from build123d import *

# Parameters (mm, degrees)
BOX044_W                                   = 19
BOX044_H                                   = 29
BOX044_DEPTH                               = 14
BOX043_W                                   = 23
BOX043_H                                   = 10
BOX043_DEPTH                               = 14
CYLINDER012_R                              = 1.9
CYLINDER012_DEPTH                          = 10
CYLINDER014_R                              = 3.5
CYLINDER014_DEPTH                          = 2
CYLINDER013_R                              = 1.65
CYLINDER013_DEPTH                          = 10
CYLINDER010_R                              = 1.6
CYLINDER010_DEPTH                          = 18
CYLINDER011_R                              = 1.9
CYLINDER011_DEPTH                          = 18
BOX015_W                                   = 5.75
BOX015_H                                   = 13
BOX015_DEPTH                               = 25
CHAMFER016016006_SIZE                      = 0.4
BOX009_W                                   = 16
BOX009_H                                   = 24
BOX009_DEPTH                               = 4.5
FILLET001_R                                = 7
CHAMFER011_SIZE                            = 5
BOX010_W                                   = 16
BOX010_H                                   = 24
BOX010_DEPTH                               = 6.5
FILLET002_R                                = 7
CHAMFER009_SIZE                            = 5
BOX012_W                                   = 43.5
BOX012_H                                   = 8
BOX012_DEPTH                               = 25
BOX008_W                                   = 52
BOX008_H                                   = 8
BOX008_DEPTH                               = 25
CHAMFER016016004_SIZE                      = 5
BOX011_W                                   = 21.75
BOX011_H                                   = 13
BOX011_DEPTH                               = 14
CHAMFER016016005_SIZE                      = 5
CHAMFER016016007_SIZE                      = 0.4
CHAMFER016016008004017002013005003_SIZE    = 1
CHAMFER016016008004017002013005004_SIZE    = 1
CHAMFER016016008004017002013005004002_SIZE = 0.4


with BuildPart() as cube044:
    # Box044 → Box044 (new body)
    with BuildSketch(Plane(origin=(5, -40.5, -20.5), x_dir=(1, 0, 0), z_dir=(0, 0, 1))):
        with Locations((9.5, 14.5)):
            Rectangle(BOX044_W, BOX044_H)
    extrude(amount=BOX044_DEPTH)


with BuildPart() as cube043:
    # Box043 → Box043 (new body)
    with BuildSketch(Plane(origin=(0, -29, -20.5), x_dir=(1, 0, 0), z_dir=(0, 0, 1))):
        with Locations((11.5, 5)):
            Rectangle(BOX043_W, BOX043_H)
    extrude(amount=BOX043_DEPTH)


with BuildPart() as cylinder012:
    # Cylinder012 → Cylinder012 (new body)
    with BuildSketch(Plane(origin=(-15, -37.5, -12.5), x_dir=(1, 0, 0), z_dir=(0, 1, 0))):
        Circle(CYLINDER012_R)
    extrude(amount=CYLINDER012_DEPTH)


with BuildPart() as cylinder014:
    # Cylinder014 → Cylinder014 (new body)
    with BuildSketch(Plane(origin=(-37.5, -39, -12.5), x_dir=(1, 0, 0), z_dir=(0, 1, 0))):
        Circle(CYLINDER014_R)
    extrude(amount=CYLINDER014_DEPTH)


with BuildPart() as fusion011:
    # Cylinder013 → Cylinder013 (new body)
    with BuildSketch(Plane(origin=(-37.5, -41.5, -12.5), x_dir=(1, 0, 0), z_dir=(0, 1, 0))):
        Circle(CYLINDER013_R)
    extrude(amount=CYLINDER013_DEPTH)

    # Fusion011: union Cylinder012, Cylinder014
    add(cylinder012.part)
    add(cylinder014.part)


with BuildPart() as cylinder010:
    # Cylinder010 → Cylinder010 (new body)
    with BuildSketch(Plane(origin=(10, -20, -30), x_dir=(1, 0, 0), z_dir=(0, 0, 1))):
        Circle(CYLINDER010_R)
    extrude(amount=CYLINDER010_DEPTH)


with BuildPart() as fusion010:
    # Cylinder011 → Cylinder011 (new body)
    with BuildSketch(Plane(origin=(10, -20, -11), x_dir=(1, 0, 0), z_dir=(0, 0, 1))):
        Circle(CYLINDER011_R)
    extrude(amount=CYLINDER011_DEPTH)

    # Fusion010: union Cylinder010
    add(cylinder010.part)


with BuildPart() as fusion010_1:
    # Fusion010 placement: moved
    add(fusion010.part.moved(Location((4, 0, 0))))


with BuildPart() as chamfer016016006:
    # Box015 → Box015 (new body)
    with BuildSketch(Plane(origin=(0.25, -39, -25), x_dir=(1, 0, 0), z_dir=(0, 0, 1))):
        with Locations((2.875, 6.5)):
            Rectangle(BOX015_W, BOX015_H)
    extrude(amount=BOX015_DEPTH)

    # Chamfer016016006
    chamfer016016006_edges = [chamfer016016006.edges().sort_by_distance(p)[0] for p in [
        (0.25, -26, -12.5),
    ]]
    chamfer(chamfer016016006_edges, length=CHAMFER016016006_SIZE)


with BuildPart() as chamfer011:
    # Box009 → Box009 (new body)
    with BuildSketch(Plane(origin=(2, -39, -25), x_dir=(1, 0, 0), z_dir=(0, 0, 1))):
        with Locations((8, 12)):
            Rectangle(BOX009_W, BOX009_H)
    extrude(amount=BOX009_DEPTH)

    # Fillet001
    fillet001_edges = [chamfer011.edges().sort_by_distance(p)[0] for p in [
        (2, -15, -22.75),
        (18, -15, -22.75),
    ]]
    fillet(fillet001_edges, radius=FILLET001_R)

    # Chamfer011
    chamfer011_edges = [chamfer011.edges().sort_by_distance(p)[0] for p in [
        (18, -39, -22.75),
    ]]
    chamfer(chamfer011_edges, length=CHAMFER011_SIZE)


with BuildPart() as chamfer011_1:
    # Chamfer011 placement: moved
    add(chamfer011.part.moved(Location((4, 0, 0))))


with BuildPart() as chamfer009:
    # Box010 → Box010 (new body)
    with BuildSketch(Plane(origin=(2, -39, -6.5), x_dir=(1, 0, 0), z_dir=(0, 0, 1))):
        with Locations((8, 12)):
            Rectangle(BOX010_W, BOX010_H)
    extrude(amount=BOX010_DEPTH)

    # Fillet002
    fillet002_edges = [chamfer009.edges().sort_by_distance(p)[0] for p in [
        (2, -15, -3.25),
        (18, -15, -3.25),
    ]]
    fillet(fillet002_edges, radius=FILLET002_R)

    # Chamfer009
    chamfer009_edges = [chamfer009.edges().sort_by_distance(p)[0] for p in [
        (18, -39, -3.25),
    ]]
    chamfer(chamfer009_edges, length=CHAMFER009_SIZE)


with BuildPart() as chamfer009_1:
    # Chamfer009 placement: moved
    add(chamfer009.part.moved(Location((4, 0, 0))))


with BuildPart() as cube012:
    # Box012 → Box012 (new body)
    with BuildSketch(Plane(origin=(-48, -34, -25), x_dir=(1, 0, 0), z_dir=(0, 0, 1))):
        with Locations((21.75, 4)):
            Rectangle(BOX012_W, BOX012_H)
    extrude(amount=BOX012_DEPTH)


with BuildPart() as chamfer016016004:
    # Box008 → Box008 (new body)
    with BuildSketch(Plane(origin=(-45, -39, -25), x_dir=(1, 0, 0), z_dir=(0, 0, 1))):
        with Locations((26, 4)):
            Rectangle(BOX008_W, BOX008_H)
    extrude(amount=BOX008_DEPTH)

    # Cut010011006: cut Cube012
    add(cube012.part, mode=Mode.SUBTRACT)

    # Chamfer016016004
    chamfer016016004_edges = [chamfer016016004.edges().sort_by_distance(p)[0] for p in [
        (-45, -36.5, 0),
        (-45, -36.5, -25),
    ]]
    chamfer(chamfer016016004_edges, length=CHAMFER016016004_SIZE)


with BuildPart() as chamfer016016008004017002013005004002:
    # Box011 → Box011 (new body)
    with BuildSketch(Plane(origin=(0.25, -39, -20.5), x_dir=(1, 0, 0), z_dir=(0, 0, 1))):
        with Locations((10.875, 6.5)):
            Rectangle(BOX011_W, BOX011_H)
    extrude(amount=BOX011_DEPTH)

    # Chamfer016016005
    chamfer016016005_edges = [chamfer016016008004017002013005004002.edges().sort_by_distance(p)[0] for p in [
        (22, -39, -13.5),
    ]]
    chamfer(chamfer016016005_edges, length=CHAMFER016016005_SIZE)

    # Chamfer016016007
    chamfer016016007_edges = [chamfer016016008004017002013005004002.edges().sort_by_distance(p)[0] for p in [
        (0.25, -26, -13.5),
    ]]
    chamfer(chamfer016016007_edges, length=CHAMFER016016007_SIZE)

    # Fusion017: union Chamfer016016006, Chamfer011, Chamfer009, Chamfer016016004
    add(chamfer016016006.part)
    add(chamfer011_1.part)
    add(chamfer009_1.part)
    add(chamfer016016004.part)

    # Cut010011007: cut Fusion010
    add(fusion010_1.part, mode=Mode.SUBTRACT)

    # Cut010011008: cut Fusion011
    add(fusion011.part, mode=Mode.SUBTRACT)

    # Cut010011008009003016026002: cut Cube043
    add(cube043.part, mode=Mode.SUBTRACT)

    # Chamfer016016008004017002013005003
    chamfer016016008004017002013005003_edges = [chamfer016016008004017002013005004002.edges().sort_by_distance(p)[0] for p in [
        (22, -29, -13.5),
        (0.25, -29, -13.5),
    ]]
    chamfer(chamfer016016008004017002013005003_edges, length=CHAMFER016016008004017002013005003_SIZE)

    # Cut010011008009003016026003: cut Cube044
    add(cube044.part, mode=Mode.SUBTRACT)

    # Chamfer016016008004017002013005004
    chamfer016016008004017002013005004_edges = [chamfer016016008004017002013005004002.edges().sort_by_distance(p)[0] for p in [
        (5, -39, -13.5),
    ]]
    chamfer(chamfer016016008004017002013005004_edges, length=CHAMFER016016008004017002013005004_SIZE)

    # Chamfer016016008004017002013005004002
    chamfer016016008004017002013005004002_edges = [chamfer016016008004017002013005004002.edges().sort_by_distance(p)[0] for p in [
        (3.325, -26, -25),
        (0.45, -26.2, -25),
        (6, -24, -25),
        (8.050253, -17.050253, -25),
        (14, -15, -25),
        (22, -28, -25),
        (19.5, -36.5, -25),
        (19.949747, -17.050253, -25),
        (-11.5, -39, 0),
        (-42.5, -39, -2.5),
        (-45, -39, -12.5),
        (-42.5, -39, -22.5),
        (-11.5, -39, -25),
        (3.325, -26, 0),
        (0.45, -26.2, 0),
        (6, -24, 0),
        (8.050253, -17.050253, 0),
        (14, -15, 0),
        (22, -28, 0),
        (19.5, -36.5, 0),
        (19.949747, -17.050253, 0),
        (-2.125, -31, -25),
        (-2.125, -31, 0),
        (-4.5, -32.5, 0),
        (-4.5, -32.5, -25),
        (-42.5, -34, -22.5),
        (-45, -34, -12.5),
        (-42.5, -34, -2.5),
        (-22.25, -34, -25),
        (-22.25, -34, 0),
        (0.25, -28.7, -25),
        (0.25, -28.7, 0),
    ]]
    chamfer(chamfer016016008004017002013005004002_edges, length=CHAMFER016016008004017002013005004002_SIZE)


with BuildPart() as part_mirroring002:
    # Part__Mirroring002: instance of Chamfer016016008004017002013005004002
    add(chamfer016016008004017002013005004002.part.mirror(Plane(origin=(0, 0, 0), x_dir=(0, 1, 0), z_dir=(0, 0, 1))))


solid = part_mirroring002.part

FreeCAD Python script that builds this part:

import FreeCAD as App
import Part
import Sketcher
Q = App.Units.Quantity


def edges_at(feature, points):
    """Names of the edges that pass closest to the given points."""
    edges = feature.Shape.Edges
    near = lambda p: min(range(len(edges)), key=lambda i: edges[i].distToShape(Part.Vertex(*p))[0])
    return sorted({f"Edge{near(p) + 1}" for p in points})

doc = App.newDocument("Part")
body = doc.addObject("PartDesign::Body", "Body")

sketch1 = body.newObject("Sketcher::SketchObject", "Sketch")
sketch1.AttachmentSupport = (doc.getObject("XY_Plane"), [""])
sketch1.MapMode = "FlatFace"
sketch1.AttachmentOffset = App.Placement(App.Vector(0, 0, -20.5), App.Rotation())
sketch1.addGeometry([
    Part.LineSegment(App.Vector(5, -11.5, 0), App.Vector(5, -40.5, 0)),
    Part.LineSegment(App.Vector(5, -40.5, 0), App.Vector(24, -40.5, 0)),
    Part.LineSegment(App.Vector(24, -40.5, 0), App.Vector(24, -11.5, 0)),
    Part.LineSegment(App.Vector(24, -11.5, 0), App.Vector(5, -11.5, 0)),
], False)
sketch1.addConstraint([
    Sketcher.Constraint("Coincident", 0, 2, 1, 1),
    Sketcher.Constraint("Coincident", 1, 2, 2, 1),
    Sketcher.Constraint("Coincident", 2, 2, 3, 1),
    Sketcher.Constraint("Coincident", 3, 2, 0, 1),
    Sketcher.Constraint("Vertical", 0),
    Sketcher.Constraint("Horizontal", 1),
    Sketcher.Constraint("Vertical", 2),
    Sketcher.Constraint("Horizontal", 3),
    Sketcher.Constraint("DistanceX", 1, 1, 1, 2, Q("19 mm")),
    Sketcher.Constraint("DistanceY", 0, 2, 0, 1, Q("29 mm")),
    Sketcher.Constraint("DistanceX", -1, 1, 0, 2, Q("5 mm")),
    Sketcher.Constraint("DistanceY", 0, 2, -1, 1, Q("40.5 mm")),
])
pad1 = body.newObject("PartDesign::Pad", "Pad")
pad1.Profile = sketch1
pad1.Length = 14
body2 = doc.addObject("PartDesign::Body", "Body001")

sketch2 = body2.newObject("Sketcher::SketchObject", "Sketch001")
sketch2.AttachmentSupport = (doc.getObject("XY_Plane001"), [""])
sketch2.MapMode = "FlatFace"
sketch2.AttachmentOffset = App.Placement(App.Vector(0, 0, -20.5), App.Rotation())
sketch2.addGeometry([
    Part.LineSegment(App.Vector(0, -19, 0), App.Vector(0, -29, 0)),
    Part.LineSegment(App.Vector(0, -29, 0), App.Vector(23, -29, 0)),
    Part.LineSegment(App.Vector(23, -29, 0), App.Vector(23, -19, 0)),
    Part.LineSegment(App.Vector(23, -19, 0), App.Vector(0, -19, 0)),
], False)
sketch2.addConstraint([
    Sketcher.Constraint("Coincident", 0, 2, 1, 1),
    Sketcher.Constraint("Coincident", 1, 2, 2, 1),
    Sketcher.Constraint("Coincident", 2, 2, 3, 1),
    Sketcher.Constraint("Coincident", 3, 2, 0, 1),
    Sketcher.Constraint("Vertical", 0),
    Sketcher.Constraint("Horizontal", 1),
    Sketcher.Constraint("Vertical", 2),
    Sketcher.Constraint("Horizontal", 3),
    Sketcher.Constraint("PointOnObject", 0, 2, -2),
    Sketcher.Constraint("DistanceX", 1, 1, 1, 2, Q("23 mm")),
    Sketcher.Constraint("DistanceY", 0, 2, 0, 1, Q("10 mm")),
    Sketcher.Constraint("DistanceY", 0, 2, -1, 1, Q("29 mm")),
])
pad2 = body2.newObject("PartDesign::Pad", "Pad001")
pad2.Profile = sketch2
pad2.Length = 14
body3 = doc.addObject("PartDesign::Body", "Body002")

sketch3 = body3.newObject("Sketcher::SketchObject", "Sketch002")
sketch3.AttachmentSupport = (doc.getObject("XZ_Plane002"), [""])
sketch3.MapMode = "FlatFace"
sketch3.AttachmentOffset = App.Placement(App.Vector(0, 0, 37.5), App.Rotation())
sketch3.addGeometry(Part.Circle(App.Vector(-15, -12.5, 0), App.Vector(0, 0, 1), 1.9), False)
sketch3.addConstraint([
    Sketcher.Constraint("Diameter", 0, Q("3.8 mm")),
    Sketcher.Constraint("DistanceX", 0, 3, -1, 1, Q("15 mm")),
    Sketcher.Constraint("DistanceY", 0, 3, -1, 1, Q("12.5 mm")),
])
pad3 = body3.newObject("PartDesign::Pad", "Pad002")
pad3.Profile = sketch3
pad3.Length = 10
pad3.Reversed = True
body4 = doc.addObject("PartDesign::Body", "Body003")

sketch4 = body4.newObject("Sketcher::SketchObject", "Sketch003")
sketch4.AttachmentSupport = (doc.getObject("XZ_Plane003"), [""])
sketch4.MapMode = "FlatFace"
sketch4.AttachmentOffset = App.Placement(App.Vector(0, 0, 39), App.Rotation())
sketch4.addGeometry(Part.Circle(App.Vector(-37.5, -12.5, 0), App.Vector(0, 0, 1), 3.5), False)
sketch4.addConstraint([
    Sketcher.Constraint("Diameter", 0, Q("7 mm")),
    Sketcher.Constraint("DistanceX", 0, 3, -1, 1, Q("37.5 mm")),
    Sketcher.Constraint("DistanceY", 0, 3, -1, 1, Q("12.5 mm")),
])
pad4 = body4.newObject("PartDesign::Pad", "Pad003")
pad4.Profile = sketch4
pad4.Length = 2
pad4.Reversed = True
body5 = doc.addObject("PartDesign::Body", "Body004")
body5.AllowCompound = True

sketch5 = body5.newObject("Sketcher::SketchObject", "Sketch004")
sketch5.AttachmentSupport = (doc.getObject("XZ_Plane004"), [""])
sketch5.MapMode = "FlatFace"
sketch5.AttachmentOffset = App.Placement(App.Vector(0, 0, 41.5), App.Rotation())
sketch5.addGeometry(Part.Circle(App.Vector(-37.5, -12.5, 0), App.Vector(0, 0, 1), 1.65), False)
sketch5.addConstraint([
    Sketcher.Constraint("Diameter", 0, Q("3.3 mm")),
    Sketcher.Constraint("DistanceX", 0, 3, -1, 1, Q("37.5 mm")),
    Sketcher.Constraint("DistanceY", 0, 3, -1, 1, Q("12.5 mm")),
])
pad5 = body5.newObject("PartDesign::Pad", "Pad004")
pad5.Profile = sketch5
pad5.Length = 10
pad5.Reversed = True
doc.recompute()

boolean = body5.newObject("PartDesign::Boolean", "Boolean")
boolean.Type = "Fuse"
boolean.addObjects([body3])
doc.recompute()

boolean2 = body5.newObject("PartDesign::Boolean", "Boolean001")
boolean2.Type = "Fuse"
boolean2.addObjects([body4])
body6 = doc.addObject("PartDesign::Body", "Body005")

sketch6 = body6.newObject("Sketcher::SketchObject", "Sketch005")
sketch6.AttachmentSupport = (doc.getObject("XY_Plane005"), [""])
sketch6.MapMode = "FlatFace"
sketch6.AttachmentOffset = App.Placement(App.Vector(0, 0, -30), App.Rotation())
sketch6.addGeometry(Part.Circle(App.Vector(10, -20, 0), App.Vector(0, 0, 1), 1.6), False)
sketch6.addConstraint([
    Sketcher.Constraint("Diameter", 0, Q("3.2 mm")),
    Sketcher.Constraint("DistanceX", -1, 1, 0, 3, Q("10 mm")),
    Sketcher.Constraint("DistanceY", 0, 3, -1, 1, Q("20 mm")),
])
pad6 = body6.newObject("PartDesign::Pad", "Pad005")
pad6.Profile = sketch6
pad6.Length = 18
body7 = doc.addObject("PartDesign::Body", "Body006")
body7.AllowCompound = True

sketch7 = body7.newObject("Sketcher::SketchObject", "Sketch006")
sketch7.AttachmentSupport = (doc.getObject("XY_Plane006"), [""])
sketch7.MapMode = "FlatFace"
sketch7.AttachmentOffset = App.Placement(App.Vector(0, 0, -11), App.Rotation())
sketch7.addGeometry(Part.Circle(App.Vector(10, -20, 0), App.Vector(0, 0, 1), 1.9), False)
sketch7.addConstraint([
    Sketcher.Constraint("Diameter", 0, Q("3.8 mm")),
    Sketcher.Constraint("DistanceX", -1, 1, 0, 3, Q("10 mm")),
    Sketcher.Constraint("DistanceY", 0, 3, -1, 1, Q("20 mm")),
])
pad7 = body7.newObject("PartDesign::Pad", "Pad006")
pad7.Profile = sketch7
pad7.Length = 18
doc.recompute()

boolean3 = body7.newObject("PartDesign::Boolean", "Boolean002")
boolean3.Type = "Fuse"
boolean3.addObjects([body6])
body8 = doc.addObject("PartDesign::Body", "Body007")
body8.AllowCompound = True
doc.recompute()

body7.Placement = App.Placement(App.Vector(4, 0, 0), App.Rotation(App.Vector(0, 0, 1), 0))
boolean4 = body8.newObject("PartDesign::Boolean", "Boolean003")
boolean4.Type = "Fuse"
boolean4.addObjects([body7])
body9 = doc.addObject("PartDesign::Body", "Body008")

sketch8 = body9.newObject("Sketcher::SketchObject", "Sketch007")
sketch8.AttachmentSupport = (doc.getObject("XY_Plane008"), [""])
sketch8.MapMode = "FlatFace"
sketch8.AttachmentOffset = App.Placement(App.Vector(0, 0, -25), App.Rotation())
sketch8.addGeometry([
    Part.LineSegment(App.Vector(0.25, -26, 0), App.Vector(0.25, -39, 0)),
    Part.LineSegment(App.Vector(0.25, -39, 0), App.Vector(6, -39, 0)),
    Part.LineSegment(App.Vector(6, -39, 0), App.Vector(6, -26, 0)),
    Part.LineSegment(App.Vector(6, -26, 0), App.Vector(0.25, -26, 0)),
], False)
sketch8.addConstraint([
    Sketcher.Constraint("Coincident", 0, 2, 1, 1),
    Sketcher.Constraint("Coincident", 1, 2, 2, 1),
    Sketcher.Constraint("Coincident", 2, 2, 3, 1),
    Sketcher.Constraint("Coincident", 3, 2, 0, 1),
    Sketcher.Constraint("Vertical", 0),
    Sketcher.Constraint("Horizontal", 1),
    Sketcher.Constraint("Vertical", 2),
    Sketcher.Constraint("Horizontal", 3),
    Sketcher.Constraint("DistanceY", 0, 2, 0, 1, Q("13 mm")),
    Sketcher.Constraint("DistanceY", 0, 2, -1, 1, Q("39 mm")),
    Sketcher.Constraint("DistanceX", -1, 1, 1, 2, Q("6 mm")),
    Sketcher.Constraint("DistanceX", 1, 1, 1, 2, Q("5.75 mm")),
])
pad8 = body9.newObject("PartDesign::Pad", "Pad007")
pad8.Profile = sketch8
pad8.Length = 25
doc.recompute()

chamfer = body9.newObject("PartDesign::Chamfer", "Chamfer")
chamfer.Base = (pad8, edges_at(pad8, [(0.25, -26, -12.5)]))
chamfer.Size = 0.4
body10 = doc.addObject("PartDesign::Body", "Body009")

sketch9 = body10.newObject("Sketcher::SketchObject", "Sketch008")
sketch9.AttachmentSupport = (doc.getObject("XY_Plane009"), [""])
sketch9.MapMode = "FlatFace"
sketch9.AttachmentOffset = App.Placement(App.Vector(0, 0, -25), App.Rotation())
sketch9.addGeometry([
    Part.LineSegment(App.Vector(2, -15, 0), App.Vector(2, -39, 0)),
    Part.LineSegment(App.Vector(2, -39, 0), App.Vector(18, -39, 0)),
    Part.LineSegment(App.Vector(18, -39, 0), App.Vector(18, -15, 0)),
    Part.LineSegment(App.Vector(18, -15, 0), App.Vector(2, -15, 0)),
], False)
sketch9.addConstraint([
    Sketcher.Constraint("Coincident", 0, 2, 1, 1),
    Sketcher.Constraint("Coincident", 1, 2, 2, 1),
    Sketcher.Constraint("Coincident", 2, 2, 3, 1),
    Sketcher.Constraint("Coincident", 3, 2, 0, 1),
    Sketcher.Constraint("Vertical", 0),
    Sketcher.Constraint("Horizontal", 1),
    Sketcher.Constraint("Vertical", 2),
    Sketcher.Constraint("Horizontal", 3),
    Sketcher.Constraint("DistanceX", 1, 1, 1, 2, Q("16 mm")),
    Sketcher.Constraint("DistanceY", 0, 2, 0, 1, Q("24 mm")),
    Sketcher.Constraint("DistanceX", -1, 1, 0, 2, Q("2 mm")),
    Sketcher.Constraint("DistanceY", 0, 2, -1, 1, Q("39 mm")),
])
pad9 = body10.newObject("PartDesign::Pad", "Pad008")
pad9.Profile = sketch9
pad9.Length = 4.5
doc.recompute()

fillet = body10.newObject("PartDesign::Fillet", "Fillet")
fillet.Base = (pad9, edges_at(pad9, [(2, -15, -22.75), (18, -15, -22.75)]))
fillet.Radius = 7
doc.recompute()

chamfer2 = body10.newObject("PartDesign::Chamfer", "Chamfer001")
chamfer2.Base = (fillet, edges_at(fillet, [(18, -39, -22.75)]))
chamfer2.Size = 5
body11 = doc.addObject("PartDesign::Body", "Body010")
doc.recompute()

body10.Placement = App.Placement(App.Vector(4, 0, 0), App.Rotation(App.Vector(0, 0, 1), 0))
boolean5 = body11.newObject("PartDesign::Boolean", "Boolean004")
boolean5.Type = "Fuse"
boolean5.addObjects([body10])
body12 = doc.addObject("PartDesign::Body", "Body011")

sketch10 = body12.newObject("Sketcher::SketchObject", "Sketch009")
sketch10.AttachmentSupport = (doc.getObject("XY_Plane011"), [""])
sketch10.MapMode = "FlatFace"
sketch10.AttachmentOffset = App.Placement(App.Vector(0, 0, -6.5), App.Rotation())
sketch10.addGeometry([
    Part.LineSegment(App.Vector(2, -15, 0), App.Vector(2, -39, 0)),
    Part.LineSegment(App.Vector(2, -39, 0), App.Vector(18, -39, 0)),
    Part.LineSegment(App.Vector(18, -39, 0), App.Vector(18, -15, 0)),
    Part.LineSegment(App.Vector(18, -15, 0), App.Vector(2, -15, 0)),
], False)
sketch10.addConstraint([
    Sketcher.Constraint("Coincident", 0, 2, 1, 1),
    Sketcher.Constraint("Coincident", 1, 2, 2, 1),
    Sketcher.Constraint("Coincident", 2, 2, 3, 1),
    Sketcher.Constraint("Coincident", 3, 2, 0, 1),
    Sketcher.Constraint("Vertical", 0),
    Sketcher.Constraint("Horizontal", 1),
    Sketcher.Constraint("Vertical", 2),
    Sketcher.Constraint("Horizontal", 3),
    Sketcher.Constraint("DistanceX", 1, 1, 1, 2, Q("16 mm")),
    Sketcher.Constraint("DistanceY", 0, 2, 0, 1, Q("24 mm")),
    Sketcher.Constraint("DistanceX", -1, 1, 0, 2, Q("2 mm")),
    Sketcher.Constraint("DistanceY", 0, 2, -1, 1, Q("39 mm")),
])
pad10 = body12.newObject("PartDesign::Pad", "Pad009")
pad10.Profile = sketch10
pad10.Length = 6.5
doc.recompute()

fillet2 = body12.newObject("PartDesign::Fillet", "Fillet001")
fillet2.Base = (pad10, edges_at(pad10, [(2, -15, -3.25), (18, -15, -3.25)]))
fillet2.Radius = 7
doc.recompute()

chamfer3 = body12.newObject("PartDesign::Chamfer", "Chamfer002")
chamfer3.Base = (fillet2, edges_at(fillet2, [(18, -39, -3.25)]))
chamfer3.Size = 5
body13 = doc.addObject("PartDesign::Body", "Body012")
doc.recompute()

body12.Placement = App.Placement(App.Vector(4, 0, 0), App.Rotation(App.Vector(0, 0, 1), 0))
boolean6 = body13.newObject("PartDesign::Boolean", "Boolean005")
boolean6.Type = "Fuse"
boolean6.addObjects([body12])
body14 = doc.addObject("PartDesign::Body", "Body013")

sketch11 = body14.newObject("Sketcher::SketchObject", "Sketch010")
sketch11.AttachmentSupport = (doc.getObject("XY_Plane013"), [""])
sketch11.MapMode = "FlatFace"
sketch11.AttachmentOffset = App.Placement(App.Vector(0, 0, -25), App.Rotation())
sketch11.addGeometry([
    Part.LineSegment(App.Vector(-48, -26, 0), App.Vector(-48, -34, 0)),
    Part.LineSegment(App.Vector(-48, -34, 0), App.Vector(-4.5, -34, 0)),
    Part.LineSegment(App.Vector(-4.5, -34, 0), App.Vector(-4.5, -26, 0)),
    Part.LineSegment(App.Vector(-4.5, -26, 0), App.Vector(-48, -26, 0)),
], False)
sketch11.addConstraint([
    Sketcher.Constraint("Coincident", 0, 2, 1, 1),
    Sketcher.Constraint("Coincident", 1, 2, 2, 1),
    Sketcher.Constraint("Coincident", 2, 2, 3, 1),
    Sketcher.Constraint("Coincident", 3, 2, 0, 1),
    Sketcher.Constraint("Vertical", 0),
    Sketcher.Constraint("Horizontal", 1),
    Sketcher.Constraint("Vertical", 2),
    Sketcher.Constraint("Horizontal", 3),
    Sketcher.Constraint("DistanceY", 0, 2, 0, 1, Q("8 mm")),
    Sketcher.Constraint("DistanceX", 1, 1, 1, 2, Q("43.5 mm")),
    Sketcher.Constraint("DistanceX", 0, 2, -1, 1, Q("48 mm")),
    Sketcher.Constraint("DistanceY", 0, 2, -1, 1, Q("34 mm")),
])
pad11 = body14.newObject("PartDesign::Pad", "Pad010")
pad11.Profile = sketch11
pad11.Length = 25
body15 = doc.addObject("PartDesign::Body", "Body014")

sketch12 = body15.newObject("Sketcher::SketchObject", "Sketch011")
sketch12.AttachmentSupport = (doc.getObject("XY_Plane014"), [""])
sketch12.MapMode = "FlatFace"
sketch12.AttachmentOffset = App.Placement(App.Vector(0, 0, -25), App.Rotation())
sketch12.addGeometry([
    Part.LineSegment(App.Vector(-45, -31, 0), App.Vector(-45, -39, 0)),
    Part.LineSegment(App.Vector(-45, -39, 0), App.Vector(7, -39, 0)),
    Part.LineSegment(App.Vector(7, -39, 0), App.Vector(7, -31, 0)),
    Part.LineSegment(App.Vector(7, -31, 0), App.Vector(-45, -31, 0)),
], False)
sketch12.addConstraint([
    Sketcher.Constraint("Coincident", 0, 2, 1, 1),
    Sketcher.Constraint("Coincident", 1, 2, 2, 1),
    Sketcher.Constraint("Coincident", 2, 2, 3, 1),
    Sketcher.Constraint("Coincident", 3, 2, 0, 1),
    Sketcher.Constraint("Vertical", 0),
    Sketcher.Constraint("Horizontal", 1),
    Sketcher.Constraint("Vertical", 2),
    Sketcher.Constraint("Horizontal", 3),
    Sketcher.Constraint("DistanceX", 1, 1, 1, 2, Q("52 mm")),
    Sketcher.Constraint("DistanceY", 0, 2, 0, 1, Q("8 mm")),
    Sketcher.Constraint("DistanceX", 0, 2, -1, 1, Q("45 mm")),
    Sketcher.Constraint("DistanceY", 0, 2, -1, 1, Q("39 mm")),
])
pad12 = body15.newObject("PartDesign::Pad", "Pad011")
pad12.Profile = sketch12
pad12.Length = 25
doc.recompute()

boolean7 = body15.newObject("PartDesign::Boolean", "Boolean006")
boolean7.Type = "Cut"
boolean7.addObjects([body14])
doc.recompute()

chamfer4 = body15.newObject("PartDesign::Chamfer", "Chamfer003")
chamfer4.Base = (boolean7, edges_at(boolean7, [(-45, -36.5, 0), (-45, -36.5, -25)]))
chamfer4.Size = 5
body16 = doc.addObject("PartDesign::Body", "Body015")

sketch13 = body16.newObject("Sketcher::SketchObject", "Sketch012")
sketch13.AttachmentSupport = (doc.getObject("XY_Plane015"), [""])
sketch13.MapMode = "FlatFace"
sketch13.AttachmentOffset = App.Placement(App.Vector(0, 0, -20.5), App.Rotation())
sketch13.addGeometry([
    Part.LineSegment(App.Vector(0.25, -26, 0), App.Vector(0.25, -39, 0)),
    Part.LineSegment(App.Vector(0.25, -39, 0), App.Vector(22, -39, 0)),
    Part.LineSegment(App.Vector(22, -39, 0), App.Vector(22, -26, 0)),
    Part.LineSegment(App.Vector(22, -26, 0), App.Vector(0.25, -26, 0)),
], False)
sketch13.addConstraint([
    Sketcher.Constraint("Coincident", 0, 2, 1, 1),
    Sketcher.Constraint("Coincident", 1, 2, 2, 1),
    Sketcher.Constraint("Coincident", 2, 2, 3, 1),
    Sketcher.Constraint("Coincident", 3, 2, 0, 1),
    Sketcher.Constraint("Vertical", 0),
    Sketcher.Constraint("Horizontal", 1),
    Sketcher.Constraint("Vertical", 2),
    Sketcher.Constraint("Horizontal", 3),
    Sketcher.Constraint("DistanceY", 0, 2, 0, 1, Q("13 mm")),
    Sketcher.Constraint("DistanceY", 0, 2, -1, 1, Q("39 mm")),
    Sketcher.Constraint("DistanceX", -1, 1, 1, 2, Q("22 mm")),
    Sketcher.Constraint("DistanceX", 1, 1, 1, 2, Q("21.75 mm")),
])
pad13 = body16.newObject("PartDesign::Pad", "Pad012")
pad13.Profile = sketch13
pad13.Length = 14
doc.recompute()

chamfer5 = body16.newObject("PartDesign::Chamfer", "Chamfer004")
chamfer5.Base = (pad13, edges_at(pad13, [(22, -39, -13.5)]))
chamfer5.Size = 5
doc.recompute()

chamfer6 = body16.newObject("PartDesign::Chamfer", "Chamfer005")
chamfer6.Base = (chamfer5, edges_at(chamfer5, [(0.25, -26, -13.5)]))
chamfer6.Size = 0.4
doc.recompute()

boolean8 = body16.newObject("PartDesign::Boolean", "Boolean007")
boolean8.Type = "Fuse"
boolean8.addObjects([body9])
doc.recompute()

boolean9 = body16.newObject("PartDesign::Boolean", "Boolean008")
boolean9.Type = "Fuse"
boolean9.addObjects([body11])
doc.recompute()

boolean10 = body16.newObject("PartDesign::Boolean", "Boolean009")
boolean10.Type = "Fuse"
boolean10.addObjects([body13])
doc.recompute()

boolean11 = body16.newObject("PartDesign::Boolean", "Boolean010")
boolean11.Type = "Fuse"
boolean11.addObjects([body15])
doc.recompute()

boolean12 = body16.newObject("PartDesign::Boolean", "Boolean011")
boolean12.Type = "Cut"
boolean12.addObjects([body8])
doc.recompute()

boolean13 = body16.newObject("PartDesign::Boolean", "Boolean012")
boolean13.Type = "Cut"
boolean13.addObjects([body5])
doc.recompute()

boolean14 = body16.newObject("PartDesign::Boolean", "Boolean013")
boolean14.Type = "Cut"
boolean14.addObjects([body2])
doc.recompute()

chamfer7 = body16.newObject("PartDesign::Chamfer", "Chamfer006")
chamfer7.Base = (boolean14, edges_at(boolean14, [(22, -29, -13.5), (0.25, -29, -13.5)]))
chamfer7.Size = 1
doc.recompute()

boolean15 = body16.newObject("PartDesign::Boolean", "Boolean014")
boolean15.Type = "Cut"
boolean15.addObjects([body])
doc.recompute()

chamfer8 = body16.newObject("PartDesign::Chamfer", "Chamfer007")
chamfer8.Base = (boolean15, edges_at(boolean15, [(5, -39, -13.5)]))
chamfer8.Size = 1
doc.recompute()

chamfer9 = body16.newObject("PartDesign::Chamfer", "Chamfer008")
chamfer9.Base = (chamfer8, edges_at(chamfer8, [
    (3.325, -26, -25),
    (0.45, -26.2, -25),
    (6, -24, -25),
    (8.05, -17.05, -25),
    (14, -15, -25),
    (22, -28, -25),
    (19.5, -36.5, -25),
    (19.95, -17.05, -25),
    (-11.5, -39, 0),
    (-42.5, -39, -2.5),
    (-45, -39, -12.5),
    (-42.5, -39, -22.5),
    (-11.5, -39, -25),
    (3.325, -26, 0),
    (0.45, -26.2, 0),
    (6, -24, 0),
    (8.05, -17.05, 0),
    (14, -15, 0),
    (22, -28, 0),
    (19.5, -36.5, 0),
    (19.95, -17.05, 0),
    (-2.125, -31, -25),
    (-2.125, -31, 0),
    (-4.5, -32.5, 0),
    (-4.5, -32.5, -25),
    (-42.5, -34, -22.5),
    (-45, -34, -12.5),
    (-42.5, -34, -2.5),
    (-22.25, -34, -25),
    (-22.25, -34, 0),
    (0.25, -28.7, -25),
    (0.25, -28.7, 0),
]))
chamfer9.Size = 0.4
body17 = doc.addObject("PartDesign::Body", "Body016")
doc.recompute()

mirroring = doc.addObject("Part::Mirroring", "Mirroring")
mirroring.Source = body16
mirroring.Base = App.Vector(0, 0, 0)
mirroring.Normal = App.Vector(0, 0, 1)
body17.BaseFeature = mirroring
doc.recompute()
body16.Visibility = False
mirroring.Visibility = False

doc.recompute()
